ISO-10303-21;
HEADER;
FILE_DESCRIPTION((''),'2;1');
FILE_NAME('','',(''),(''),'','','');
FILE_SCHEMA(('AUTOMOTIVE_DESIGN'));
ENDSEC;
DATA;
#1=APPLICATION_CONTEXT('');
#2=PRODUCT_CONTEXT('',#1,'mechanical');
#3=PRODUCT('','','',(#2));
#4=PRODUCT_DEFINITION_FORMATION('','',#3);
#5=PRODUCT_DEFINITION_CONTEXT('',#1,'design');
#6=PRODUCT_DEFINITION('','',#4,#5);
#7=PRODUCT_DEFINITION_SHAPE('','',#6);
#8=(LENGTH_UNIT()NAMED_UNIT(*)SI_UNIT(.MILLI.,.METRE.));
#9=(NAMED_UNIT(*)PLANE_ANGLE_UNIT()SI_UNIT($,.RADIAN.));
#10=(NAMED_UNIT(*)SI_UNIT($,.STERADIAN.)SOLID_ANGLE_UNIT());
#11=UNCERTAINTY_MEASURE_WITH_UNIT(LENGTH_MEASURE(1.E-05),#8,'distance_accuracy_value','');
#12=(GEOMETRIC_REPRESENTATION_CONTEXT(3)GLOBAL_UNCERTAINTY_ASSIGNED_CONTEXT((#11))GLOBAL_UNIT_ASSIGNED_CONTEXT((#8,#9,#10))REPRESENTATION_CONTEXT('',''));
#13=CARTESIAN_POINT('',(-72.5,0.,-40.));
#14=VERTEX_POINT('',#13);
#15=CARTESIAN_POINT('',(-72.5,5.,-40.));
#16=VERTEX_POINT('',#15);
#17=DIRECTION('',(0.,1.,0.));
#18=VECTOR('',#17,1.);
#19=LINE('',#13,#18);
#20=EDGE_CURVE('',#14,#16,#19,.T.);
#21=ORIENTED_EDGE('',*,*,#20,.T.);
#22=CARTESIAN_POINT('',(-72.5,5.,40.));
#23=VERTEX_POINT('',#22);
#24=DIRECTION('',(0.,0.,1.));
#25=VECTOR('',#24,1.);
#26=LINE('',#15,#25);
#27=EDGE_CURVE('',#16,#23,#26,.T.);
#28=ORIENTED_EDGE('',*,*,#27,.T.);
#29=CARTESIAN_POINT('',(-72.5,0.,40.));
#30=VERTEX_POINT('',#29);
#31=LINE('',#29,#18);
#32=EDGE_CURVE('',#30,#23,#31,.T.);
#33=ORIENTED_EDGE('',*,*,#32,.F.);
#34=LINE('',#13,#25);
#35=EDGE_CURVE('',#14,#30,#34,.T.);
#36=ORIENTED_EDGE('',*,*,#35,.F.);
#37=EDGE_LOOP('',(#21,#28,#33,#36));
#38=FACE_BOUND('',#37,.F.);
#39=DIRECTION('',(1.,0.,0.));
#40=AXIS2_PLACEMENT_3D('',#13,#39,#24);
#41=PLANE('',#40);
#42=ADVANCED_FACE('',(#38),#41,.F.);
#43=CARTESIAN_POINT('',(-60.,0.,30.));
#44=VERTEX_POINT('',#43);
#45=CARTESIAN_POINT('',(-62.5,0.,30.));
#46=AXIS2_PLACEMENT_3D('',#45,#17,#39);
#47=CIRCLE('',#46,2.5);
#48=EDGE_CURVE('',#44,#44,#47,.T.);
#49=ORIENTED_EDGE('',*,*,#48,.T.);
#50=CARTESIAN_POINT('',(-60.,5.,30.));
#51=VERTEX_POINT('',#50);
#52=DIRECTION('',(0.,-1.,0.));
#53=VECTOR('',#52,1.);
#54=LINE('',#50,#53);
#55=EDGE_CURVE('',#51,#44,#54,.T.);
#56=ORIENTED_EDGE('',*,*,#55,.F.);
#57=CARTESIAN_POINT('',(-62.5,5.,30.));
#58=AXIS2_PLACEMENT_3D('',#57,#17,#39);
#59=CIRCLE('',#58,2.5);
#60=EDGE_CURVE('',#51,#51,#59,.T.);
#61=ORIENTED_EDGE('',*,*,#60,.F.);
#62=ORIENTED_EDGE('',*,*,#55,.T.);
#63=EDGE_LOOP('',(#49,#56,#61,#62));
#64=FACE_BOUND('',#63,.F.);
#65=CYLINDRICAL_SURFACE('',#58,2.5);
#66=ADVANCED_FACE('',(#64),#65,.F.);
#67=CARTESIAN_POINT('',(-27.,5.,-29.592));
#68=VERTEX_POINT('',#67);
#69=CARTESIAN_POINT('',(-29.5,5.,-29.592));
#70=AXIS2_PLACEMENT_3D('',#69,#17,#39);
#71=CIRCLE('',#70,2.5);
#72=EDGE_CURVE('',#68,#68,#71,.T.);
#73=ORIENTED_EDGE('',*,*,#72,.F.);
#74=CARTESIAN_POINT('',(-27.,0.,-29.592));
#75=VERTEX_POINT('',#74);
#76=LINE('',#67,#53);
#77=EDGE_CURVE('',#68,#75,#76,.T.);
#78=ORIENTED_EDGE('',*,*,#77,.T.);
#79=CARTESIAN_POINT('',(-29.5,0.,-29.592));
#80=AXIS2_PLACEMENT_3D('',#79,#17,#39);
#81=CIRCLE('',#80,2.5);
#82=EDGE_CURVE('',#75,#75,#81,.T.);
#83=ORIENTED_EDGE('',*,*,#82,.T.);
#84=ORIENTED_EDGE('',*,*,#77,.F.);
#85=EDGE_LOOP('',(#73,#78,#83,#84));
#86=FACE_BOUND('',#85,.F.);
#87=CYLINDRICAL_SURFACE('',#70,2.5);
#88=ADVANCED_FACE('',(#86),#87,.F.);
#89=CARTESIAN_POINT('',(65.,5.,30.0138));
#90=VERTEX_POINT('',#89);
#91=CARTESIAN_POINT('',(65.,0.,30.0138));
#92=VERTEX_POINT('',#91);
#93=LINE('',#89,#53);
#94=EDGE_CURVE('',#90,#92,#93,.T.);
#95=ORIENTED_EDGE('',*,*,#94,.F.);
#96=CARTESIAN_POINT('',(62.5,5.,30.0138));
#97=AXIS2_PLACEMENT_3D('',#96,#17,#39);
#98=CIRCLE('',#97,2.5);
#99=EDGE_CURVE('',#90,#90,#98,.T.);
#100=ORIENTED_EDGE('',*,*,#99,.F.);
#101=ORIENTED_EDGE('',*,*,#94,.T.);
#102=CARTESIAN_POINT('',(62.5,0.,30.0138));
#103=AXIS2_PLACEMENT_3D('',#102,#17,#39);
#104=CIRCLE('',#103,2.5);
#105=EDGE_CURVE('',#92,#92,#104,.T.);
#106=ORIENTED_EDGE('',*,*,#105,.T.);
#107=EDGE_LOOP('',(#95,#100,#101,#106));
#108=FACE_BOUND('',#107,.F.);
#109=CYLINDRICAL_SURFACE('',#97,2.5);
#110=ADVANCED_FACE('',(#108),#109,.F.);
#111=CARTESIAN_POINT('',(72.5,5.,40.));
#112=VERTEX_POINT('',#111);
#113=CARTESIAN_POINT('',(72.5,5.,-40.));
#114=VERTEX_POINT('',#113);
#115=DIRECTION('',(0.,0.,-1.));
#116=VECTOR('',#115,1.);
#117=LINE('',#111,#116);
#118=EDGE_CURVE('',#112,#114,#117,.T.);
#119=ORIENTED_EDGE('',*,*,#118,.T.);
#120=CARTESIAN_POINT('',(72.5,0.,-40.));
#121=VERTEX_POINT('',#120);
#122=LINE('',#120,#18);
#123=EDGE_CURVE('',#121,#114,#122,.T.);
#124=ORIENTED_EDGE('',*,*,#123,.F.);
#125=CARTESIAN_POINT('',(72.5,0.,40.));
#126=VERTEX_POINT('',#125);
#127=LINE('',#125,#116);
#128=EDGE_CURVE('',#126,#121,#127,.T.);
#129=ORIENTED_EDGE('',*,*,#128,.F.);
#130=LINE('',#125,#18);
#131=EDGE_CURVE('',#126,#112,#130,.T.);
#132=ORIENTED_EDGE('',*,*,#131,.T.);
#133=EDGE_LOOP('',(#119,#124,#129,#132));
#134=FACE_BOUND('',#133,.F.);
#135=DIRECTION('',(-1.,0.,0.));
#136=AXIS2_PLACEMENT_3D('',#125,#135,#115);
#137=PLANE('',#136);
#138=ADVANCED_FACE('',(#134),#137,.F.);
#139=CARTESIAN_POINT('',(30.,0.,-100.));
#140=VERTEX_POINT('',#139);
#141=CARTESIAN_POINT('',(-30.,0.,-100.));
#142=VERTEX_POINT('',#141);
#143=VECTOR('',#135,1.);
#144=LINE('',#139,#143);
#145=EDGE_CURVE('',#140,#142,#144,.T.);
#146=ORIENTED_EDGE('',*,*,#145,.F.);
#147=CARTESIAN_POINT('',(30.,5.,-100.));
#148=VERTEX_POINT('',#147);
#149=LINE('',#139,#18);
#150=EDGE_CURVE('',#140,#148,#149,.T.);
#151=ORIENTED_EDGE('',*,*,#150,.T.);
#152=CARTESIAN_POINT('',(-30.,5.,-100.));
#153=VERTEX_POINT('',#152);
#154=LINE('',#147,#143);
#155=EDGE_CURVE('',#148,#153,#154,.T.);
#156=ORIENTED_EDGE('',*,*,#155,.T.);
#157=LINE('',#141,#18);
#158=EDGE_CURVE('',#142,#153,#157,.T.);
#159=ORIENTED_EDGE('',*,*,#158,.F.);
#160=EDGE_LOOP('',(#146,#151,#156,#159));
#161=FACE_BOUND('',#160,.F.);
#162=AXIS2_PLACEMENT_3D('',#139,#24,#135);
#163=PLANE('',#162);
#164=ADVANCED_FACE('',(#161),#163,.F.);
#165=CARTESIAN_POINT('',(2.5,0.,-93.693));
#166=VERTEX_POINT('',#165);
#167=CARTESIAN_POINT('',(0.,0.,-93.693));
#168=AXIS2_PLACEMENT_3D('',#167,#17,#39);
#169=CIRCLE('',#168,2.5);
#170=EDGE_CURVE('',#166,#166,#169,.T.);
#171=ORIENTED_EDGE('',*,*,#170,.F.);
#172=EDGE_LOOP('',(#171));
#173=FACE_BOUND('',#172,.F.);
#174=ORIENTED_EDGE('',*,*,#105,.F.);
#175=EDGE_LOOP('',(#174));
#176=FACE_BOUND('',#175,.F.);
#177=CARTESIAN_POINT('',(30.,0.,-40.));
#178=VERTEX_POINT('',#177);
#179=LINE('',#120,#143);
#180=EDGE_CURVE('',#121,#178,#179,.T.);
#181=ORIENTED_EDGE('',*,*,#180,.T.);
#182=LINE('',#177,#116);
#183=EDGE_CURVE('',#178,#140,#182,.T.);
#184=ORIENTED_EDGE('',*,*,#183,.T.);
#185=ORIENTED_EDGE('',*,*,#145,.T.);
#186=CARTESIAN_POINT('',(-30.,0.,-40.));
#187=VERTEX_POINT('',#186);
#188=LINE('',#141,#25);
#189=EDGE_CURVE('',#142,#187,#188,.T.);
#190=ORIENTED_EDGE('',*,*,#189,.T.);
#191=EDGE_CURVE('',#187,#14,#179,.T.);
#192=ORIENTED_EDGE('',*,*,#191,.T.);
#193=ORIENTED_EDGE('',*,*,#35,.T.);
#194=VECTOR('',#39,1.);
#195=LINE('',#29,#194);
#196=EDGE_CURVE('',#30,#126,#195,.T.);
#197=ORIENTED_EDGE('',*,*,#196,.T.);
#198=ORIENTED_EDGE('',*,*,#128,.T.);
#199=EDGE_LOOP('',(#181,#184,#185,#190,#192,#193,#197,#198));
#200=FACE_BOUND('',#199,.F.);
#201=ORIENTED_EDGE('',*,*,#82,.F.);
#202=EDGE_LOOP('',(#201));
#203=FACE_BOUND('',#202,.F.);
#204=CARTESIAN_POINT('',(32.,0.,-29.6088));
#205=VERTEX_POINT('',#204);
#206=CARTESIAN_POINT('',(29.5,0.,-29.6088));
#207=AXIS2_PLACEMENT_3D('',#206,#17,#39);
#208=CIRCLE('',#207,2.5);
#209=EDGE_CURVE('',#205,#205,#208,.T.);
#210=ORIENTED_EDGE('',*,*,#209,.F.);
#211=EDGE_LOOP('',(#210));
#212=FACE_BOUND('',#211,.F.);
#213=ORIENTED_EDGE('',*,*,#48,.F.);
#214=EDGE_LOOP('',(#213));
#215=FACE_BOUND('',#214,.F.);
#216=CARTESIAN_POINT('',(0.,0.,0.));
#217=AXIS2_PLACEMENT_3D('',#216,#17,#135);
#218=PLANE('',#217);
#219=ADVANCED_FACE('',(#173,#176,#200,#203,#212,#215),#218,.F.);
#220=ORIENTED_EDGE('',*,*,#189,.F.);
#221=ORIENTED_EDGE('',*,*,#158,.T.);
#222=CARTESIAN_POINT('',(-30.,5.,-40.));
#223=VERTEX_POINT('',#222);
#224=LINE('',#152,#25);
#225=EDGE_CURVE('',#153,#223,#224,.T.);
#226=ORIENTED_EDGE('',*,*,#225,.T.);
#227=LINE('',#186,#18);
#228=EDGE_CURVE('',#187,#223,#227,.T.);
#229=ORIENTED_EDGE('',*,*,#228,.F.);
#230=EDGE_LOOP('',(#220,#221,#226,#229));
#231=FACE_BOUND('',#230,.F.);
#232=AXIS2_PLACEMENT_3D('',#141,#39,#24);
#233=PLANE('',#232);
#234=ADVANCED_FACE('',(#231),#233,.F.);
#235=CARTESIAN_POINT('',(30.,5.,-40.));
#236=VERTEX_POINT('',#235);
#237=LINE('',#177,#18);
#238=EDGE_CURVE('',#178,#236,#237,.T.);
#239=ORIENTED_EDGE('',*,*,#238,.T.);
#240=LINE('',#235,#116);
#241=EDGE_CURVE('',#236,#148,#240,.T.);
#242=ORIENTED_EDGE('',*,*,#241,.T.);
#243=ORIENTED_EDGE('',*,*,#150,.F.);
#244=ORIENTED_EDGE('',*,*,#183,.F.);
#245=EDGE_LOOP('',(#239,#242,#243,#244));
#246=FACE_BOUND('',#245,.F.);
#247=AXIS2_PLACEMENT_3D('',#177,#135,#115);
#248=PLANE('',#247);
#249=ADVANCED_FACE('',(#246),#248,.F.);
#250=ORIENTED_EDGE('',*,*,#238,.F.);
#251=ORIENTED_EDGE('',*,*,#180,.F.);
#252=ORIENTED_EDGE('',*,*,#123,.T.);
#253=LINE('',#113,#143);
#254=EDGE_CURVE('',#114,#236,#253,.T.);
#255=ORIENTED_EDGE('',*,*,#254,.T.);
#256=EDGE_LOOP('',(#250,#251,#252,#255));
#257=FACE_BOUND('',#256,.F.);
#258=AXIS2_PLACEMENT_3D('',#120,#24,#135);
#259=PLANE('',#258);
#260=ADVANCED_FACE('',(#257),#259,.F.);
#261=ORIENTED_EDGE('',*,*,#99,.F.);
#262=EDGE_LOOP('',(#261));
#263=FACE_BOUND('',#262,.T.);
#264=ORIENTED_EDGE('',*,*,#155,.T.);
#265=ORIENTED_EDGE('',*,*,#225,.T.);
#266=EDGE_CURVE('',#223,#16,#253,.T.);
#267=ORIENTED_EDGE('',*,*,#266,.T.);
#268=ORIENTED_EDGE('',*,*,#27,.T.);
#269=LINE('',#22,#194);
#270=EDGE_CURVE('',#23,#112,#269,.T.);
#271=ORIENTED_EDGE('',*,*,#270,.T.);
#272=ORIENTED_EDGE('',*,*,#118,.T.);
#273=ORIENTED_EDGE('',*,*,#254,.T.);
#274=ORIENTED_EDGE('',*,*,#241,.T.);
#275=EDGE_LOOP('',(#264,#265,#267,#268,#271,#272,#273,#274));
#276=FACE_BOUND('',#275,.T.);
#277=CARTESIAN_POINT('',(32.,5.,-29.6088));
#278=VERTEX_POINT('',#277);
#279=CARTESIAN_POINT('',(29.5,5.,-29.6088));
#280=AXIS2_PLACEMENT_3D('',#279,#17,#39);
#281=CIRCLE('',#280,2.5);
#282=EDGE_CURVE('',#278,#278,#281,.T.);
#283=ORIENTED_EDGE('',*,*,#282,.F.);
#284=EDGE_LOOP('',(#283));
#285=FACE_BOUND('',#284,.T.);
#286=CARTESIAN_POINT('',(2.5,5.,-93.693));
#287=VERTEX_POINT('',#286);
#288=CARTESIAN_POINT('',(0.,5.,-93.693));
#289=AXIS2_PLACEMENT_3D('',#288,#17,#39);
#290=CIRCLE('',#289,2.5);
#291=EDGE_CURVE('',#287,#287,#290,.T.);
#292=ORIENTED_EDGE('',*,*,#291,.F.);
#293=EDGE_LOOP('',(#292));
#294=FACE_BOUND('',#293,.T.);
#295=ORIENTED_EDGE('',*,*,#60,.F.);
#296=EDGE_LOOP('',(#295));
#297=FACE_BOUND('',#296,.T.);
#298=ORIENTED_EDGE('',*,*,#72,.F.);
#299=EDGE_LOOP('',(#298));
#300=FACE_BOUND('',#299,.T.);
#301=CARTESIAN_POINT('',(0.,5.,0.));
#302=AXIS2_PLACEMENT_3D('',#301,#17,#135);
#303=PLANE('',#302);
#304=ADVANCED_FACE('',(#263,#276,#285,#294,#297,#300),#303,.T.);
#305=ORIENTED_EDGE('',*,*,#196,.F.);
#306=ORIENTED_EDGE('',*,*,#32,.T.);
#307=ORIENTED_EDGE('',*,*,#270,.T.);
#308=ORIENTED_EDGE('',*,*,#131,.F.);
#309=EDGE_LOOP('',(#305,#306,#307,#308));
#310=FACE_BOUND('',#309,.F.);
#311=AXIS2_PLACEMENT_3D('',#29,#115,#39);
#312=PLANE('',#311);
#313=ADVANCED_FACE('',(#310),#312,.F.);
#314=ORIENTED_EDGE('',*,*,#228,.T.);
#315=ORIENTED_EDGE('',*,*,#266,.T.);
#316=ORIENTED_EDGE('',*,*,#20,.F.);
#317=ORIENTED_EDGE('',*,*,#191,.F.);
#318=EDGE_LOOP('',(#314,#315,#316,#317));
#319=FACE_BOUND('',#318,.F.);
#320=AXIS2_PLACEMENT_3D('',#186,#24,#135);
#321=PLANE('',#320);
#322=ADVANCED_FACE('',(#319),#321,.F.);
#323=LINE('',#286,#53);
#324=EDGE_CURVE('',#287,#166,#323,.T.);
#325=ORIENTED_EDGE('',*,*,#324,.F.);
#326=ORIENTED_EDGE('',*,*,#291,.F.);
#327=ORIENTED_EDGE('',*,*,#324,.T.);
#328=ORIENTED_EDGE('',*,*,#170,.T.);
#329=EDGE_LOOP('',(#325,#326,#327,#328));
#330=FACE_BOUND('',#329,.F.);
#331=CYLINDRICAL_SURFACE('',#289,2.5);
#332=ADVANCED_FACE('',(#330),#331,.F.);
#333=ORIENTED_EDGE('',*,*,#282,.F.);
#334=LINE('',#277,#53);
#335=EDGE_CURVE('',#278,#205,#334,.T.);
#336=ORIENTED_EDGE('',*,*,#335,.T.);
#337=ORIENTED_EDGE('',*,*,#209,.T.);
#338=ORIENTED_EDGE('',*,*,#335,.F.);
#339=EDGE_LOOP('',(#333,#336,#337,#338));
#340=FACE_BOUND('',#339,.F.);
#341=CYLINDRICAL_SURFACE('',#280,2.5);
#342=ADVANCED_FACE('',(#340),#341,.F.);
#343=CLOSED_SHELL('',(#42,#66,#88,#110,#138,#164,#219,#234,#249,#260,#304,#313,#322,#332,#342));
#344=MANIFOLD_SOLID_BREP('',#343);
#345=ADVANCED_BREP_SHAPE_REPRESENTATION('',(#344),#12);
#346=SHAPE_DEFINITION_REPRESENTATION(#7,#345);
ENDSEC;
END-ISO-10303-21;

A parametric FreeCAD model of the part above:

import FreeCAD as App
import Part
import Sketcher
from FreeCAD import Vector
Q = App.Units.Quantity

doc = App.newDocument("Part")
body = doc.addObject("PartDesign::Body", "Body")

# Sketch on XZ plane
sketch1 = doc.addObject("Sketcher::SketchObject", "Sketch")
body.addObject(sketch1)
sketch1.AttachmentSupport = (doc.XZ_Plane, [""])
sketch1.MapMode = "FlatFace"
sketch1.addGeometry([
    Part.LineSegment(Vector(-72, -40, 0), Vector(-72, 40, 0)),  # 0
    Part.LineSegment(Vector(-72, 40, 0), Vector(72, 40, 0)),  # 1
    Part.LineSegment(Vector(72, 40, 0), Vector(72, -40, 0)),  # 2
    Part.LineSegment(Vector(72, -40, 0), Vector(30, -40, 0)),  # 3
    Part.LineSegment(Vector(30, -40, 0), Vector(30, -100, 0)),  # 4
    Part.LineSegment(Vector(30, -100, 0), Vector(-30, -100, 0)),  # 5
    Part.LineSegment(Vector(-30, -100, 0), Vector(-30, -40, 0)),  # 6
    Part.LineSegment(Vector(-30, -40, 0), Vector(-72, -40, 0)),  # 7
], False)
sketch1.addConstraint([
    Sketcher.Constraint("Coincident", 0, 2, 1, 1),
    Sketcher.Constraint("Coincident", 1, 2, 2, 1),
    Sketcher.Constraint("Coincident", 2, 2, 3, 1),
    Sketcher.Constraint("Coincident", 3, 2, 4, 1),
    Sketcher.Constraint("Coincident", 4, 2, 5, 1),
    Sketcher.Constraint("Coincident", 5, 2, 6, 1),
    Sketcher.Constraint("Coincident", 6, 2, 7, 1),
    Sketcher.Constraint("Coincident", 7, 2, 0, 1),
    Sketcher.Constraint("Vertical", 0),
    Sketcher.Constraint("Horizontal", 1),
    Sketcher.Constraint("Vertical", 2),
    Sketcher.Constraint("Horizontal", 3),
    Sketcher.Constraint("Vertical", 4),
    Sketcher.Constraint("Horizontal", 5),
    Sketcher.Constraint("Vertical", 6),
    Sketcher.Constraint("Horizontal", 7),
    Sketcher.Constraint("Symmetric", 0, 2, 2, 2, -1, 1),
    Sketcher.Constraint("Symmetric", 3, 2, 6, 2, -2),
    Sketcher.Constraint("Equal", 5, 4),
    Sketcher.Constraint("DistanceX", 1, 1, 1, 2, Q("145 mm")),
    Sketcher.Constraint("DistanceX", 5, 2, 5, 1, Q("60 mm")),
    Sketcher.Constraint("DistanceY", 0, 1, 0, 2, Q("80 mm")),
])
pad1 = doc.addObject("PartDesign::Pad", "Pad")
body.addObject(pad1)
pad1.Profile = sketch1
pad1.Length = 5
pad1.Reversed = True

# Sketch on XZ plane
sketch2 = doc.addObject("Sketcher::SketchObject", "Sketch001")
body.addObject(sketch2)
sketch2.AttachmentSupport = (doc.XZ_Plane, [""])
sketch2.MapMode = "FlatFace"
sketch2.AttachmentOffset = App.Placement(Vector(0, 0, -5), App.Rotation())
sketch2.addGeometry([
    Part.Circle(Vector(62.5, 30, 0), Vector(0, 0, 1), 2.5),  # 0
    Part.Circle(Vector(-29.5, -29.6, 0), Vector(0, 0, 1), 2.5),  # 1
    Part.Circle(Vector(-62.5, 30, 0), Vector(0, 0, 1), 2.5),  # 2
    Part.Circle(Vector(29.5, -29.6, 0), Vector(0, 0, 1), 2.5),  # 3
    Part.Circle(Vector(0, -93.7, 0), Vector(0, 0, 1), 2.5),  # 4
], False)
sketch2.addConstraint([
    Sketcher.Constraint("Equal", 0, 1),
    Sketcher.Constraint("Equal", 1, 2),
    Sketcher.Constraint("Equal", 2, 3),
    Sketcher.Constraint("Equal", 3, 4),
    Sketcher.Constraint("PointOnObject", 4, 3, -2),
    Sketcher.Constraint("Diameter", 0, Q("5 mm")),
    Sketcher.Constraint("DistanceX", 2, 3, 1, 3, Q("33 mm")),
    Sketcher.Constraint("DistanceX", 2, 3, 0, 3, Q("125 mm")),
    Sketcher.Constraint("DistanceX", 1, 3, 3, 3, Q("59 mm")),
    Sketcher.Constraint("DistanceY", -1, 1, 2, 3, Q("30 mm")),
    Sketcher.Constraint("DistanceY", 1, 3, 2, 3, Q("59.592 mm")),
    Sketcher.Constraint("DistanceY", 4, 3, 1, 3, Q("64.101 mm")),
    Sketcher.Constraint("DistanceX", -1, 1, 0, 3, Q("62.5 mm")),
    Sketcher.Constraint("DistanceY", -1, 1, 0, 3, Q("30.0138 mm")),
    Sketcher.Constraint("DistanceY", 3, 3, -1, 1, Q("29.6088 mm")),
])
pocket1 = doc.addObject("PartDesign::Pocket", "Pocket")
body.addObject(pocket1)
pocket1.Profile = sketch2
pocket1.Type = "ThroughAll"
pocket1.Reversed = True

doc.recompute()
